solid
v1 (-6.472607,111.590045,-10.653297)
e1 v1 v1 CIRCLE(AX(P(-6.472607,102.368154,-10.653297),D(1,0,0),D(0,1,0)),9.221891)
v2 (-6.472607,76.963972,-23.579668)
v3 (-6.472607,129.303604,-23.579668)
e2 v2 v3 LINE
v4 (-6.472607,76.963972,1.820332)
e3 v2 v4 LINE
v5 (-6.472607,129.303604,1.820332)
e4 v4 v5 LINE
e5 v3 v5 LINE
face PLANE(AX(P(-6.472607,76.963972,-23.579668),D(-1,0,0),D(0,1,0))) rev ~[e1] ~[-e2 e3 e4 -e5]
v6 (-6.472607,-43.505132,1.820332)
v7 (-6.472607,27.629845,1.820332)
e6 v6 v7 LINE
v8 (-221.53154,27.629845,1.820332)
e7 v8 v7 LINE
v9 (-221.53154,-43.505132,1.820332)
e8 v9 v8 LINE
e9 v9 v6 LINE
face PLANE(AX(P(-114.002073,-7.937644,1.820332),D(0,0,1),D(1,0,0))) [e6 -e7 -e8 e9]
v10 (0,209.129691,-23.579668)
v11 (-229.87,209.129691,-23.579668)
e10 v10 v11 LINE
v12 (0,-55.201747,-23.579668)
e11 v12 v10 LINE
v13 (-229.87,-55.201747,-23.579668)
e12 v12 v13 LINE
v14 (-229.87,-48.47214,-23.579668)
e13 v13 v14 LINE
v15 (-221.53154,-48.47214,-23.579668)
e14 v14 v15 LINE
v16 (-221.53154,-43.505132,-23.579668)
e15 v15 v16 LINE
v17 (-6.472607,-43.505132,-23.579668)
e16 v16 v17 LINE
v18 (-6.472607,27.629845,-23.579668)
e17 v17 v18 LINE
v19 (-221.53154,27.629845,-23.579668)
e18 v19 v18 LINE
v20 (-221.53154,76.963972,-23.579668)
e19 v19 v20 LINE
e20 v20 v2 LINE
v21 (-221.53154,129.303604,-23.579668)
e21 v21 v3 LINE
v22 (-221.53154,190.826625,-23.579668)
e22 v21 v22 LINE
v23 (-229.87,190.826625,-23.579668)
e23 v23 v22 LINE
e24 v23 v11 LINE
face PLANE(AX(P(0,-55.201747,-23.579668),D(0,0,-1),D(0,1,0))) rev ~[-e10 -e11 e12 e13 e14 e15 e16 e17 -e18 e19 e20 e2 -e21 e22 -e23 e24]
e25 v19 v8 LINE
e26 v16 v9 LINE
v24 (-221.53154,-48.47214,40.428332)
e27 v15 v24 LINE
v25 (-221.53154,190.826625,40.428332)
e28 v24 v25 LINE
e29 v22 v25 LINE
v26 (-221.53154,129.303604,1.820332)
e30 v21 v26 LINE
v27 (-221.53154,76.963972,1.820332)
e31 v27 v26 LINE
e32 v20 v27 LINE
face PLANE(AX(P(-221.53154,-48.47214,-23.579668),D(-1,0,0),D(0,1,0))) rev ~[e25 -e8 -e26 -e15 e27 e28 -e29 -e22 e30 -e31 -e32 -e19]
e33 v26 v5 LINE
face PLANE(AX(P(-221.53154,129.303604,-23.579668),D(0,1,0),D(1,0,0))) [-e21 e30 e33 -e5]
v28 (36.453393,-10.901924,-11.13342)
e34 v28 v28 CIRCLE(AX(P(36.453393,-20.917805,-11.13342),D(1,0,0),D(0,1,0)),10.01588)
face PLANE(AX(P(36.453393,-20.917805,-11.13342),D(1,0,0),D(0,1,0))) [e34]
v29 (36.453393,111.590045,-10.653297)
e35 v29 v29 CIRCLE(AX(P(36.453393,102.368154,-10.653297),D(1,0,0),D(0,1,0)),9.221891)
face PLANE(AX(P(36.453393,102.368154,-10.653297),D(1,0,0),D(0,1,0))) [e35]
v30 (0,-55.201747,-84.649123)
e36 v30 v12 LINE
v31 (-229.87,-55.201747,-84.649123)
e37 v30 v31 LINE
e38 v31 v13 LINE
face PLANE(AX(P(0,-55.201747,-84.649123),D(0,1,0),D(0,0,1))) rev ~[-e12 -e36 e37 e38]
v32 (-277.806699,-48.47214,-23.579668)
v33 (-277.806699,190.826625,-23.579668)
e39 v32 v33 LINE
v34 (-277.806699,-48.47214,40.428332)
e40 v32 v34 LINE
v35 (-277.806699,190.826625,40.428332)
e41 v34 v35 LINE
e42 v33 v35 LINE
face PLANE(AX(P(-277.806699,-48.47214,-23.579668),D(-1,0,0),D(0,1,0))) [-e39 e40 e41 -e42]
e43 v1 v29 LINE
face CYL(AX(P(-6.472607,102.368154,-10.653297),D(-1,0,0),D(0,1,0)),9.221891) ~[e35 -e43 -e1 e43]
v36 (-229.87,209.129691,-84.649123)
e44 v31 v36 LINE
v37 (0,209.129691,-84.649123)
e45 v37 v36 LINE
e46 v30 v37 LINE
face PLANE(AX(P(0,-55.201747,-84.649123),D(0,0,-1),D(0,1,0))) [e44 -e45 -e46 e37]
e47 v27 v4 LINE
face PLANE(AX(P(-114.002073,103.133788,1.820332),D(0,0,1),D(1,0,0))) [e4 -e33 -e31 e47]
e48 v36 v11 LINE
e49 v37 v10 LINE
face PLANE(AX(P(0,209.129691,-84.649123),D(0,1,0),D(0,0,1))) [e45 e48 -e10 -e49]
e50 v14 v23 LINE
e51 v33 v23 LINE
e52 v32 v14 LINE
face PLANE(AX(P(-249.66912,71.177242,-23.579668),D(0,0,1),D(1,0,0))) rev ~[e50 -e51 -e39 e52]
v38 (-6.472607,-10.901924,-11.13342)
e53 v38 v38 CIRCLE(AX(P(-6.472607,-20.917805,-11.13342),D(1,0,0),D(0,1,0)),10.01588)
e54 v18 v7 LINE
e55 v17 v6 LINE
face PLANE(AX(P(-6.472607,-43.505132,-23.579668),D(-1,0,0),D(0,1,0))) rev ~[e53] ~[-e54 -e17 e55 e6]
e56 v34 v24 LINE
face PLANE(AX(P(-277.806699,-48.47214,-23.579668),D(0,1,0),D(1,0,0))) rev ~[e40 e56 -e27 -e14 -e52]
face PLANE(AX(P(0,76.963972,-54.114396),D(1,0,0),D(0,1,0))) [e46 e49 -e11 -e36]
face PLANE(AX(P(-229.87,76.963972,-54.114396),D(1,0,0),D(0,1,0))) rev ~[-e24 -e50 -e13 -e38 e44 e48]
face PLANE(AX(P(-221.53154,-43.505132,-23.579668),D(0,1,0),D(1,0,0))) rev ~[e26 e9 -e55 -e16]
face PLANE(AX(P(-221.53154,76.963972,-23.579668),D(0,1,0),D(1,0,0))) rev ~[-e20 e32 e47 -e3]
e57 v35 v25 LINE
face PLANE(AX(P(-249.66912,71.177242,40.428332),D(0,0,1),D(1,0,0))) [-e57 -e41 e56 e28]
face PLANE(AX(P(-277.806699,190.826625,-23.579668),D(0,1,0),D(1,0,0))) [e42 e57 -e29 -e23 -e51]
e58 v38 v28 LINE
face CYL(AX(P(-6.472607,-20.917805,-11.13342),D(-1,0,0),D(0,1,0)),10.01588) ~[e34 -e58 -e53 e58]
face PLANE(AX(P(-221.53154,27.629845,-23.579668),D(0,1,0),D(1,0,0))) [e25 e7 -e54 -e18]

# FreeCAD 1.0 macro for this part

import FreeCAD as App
import Part
import Sketcher

V = App.Vector
Q = App.Units.Quantity

doc = App.newDocument("Part")
body = doc.addObject("PartDesign::Body", "Body")

# Sketch on YZ plane
sketch1 = body.newObject("Sketcher::SketchObject", "Sketch")
sketch1.AttachmentSupport = (doc.getObject("YZ_Plane"), [""])
sketch1.MapMode = "FlatFace"
sketch1.addGeometry([
    Part.LineSegment(V(-55, -24, 0), V(-55, -85, 0)),
    Part.LineSegment(V(-55, -85, 0), V(209, -85, 0)),
    Part.LineSegment(V(209, -85, 0), V(209, -24, 0)),
    Part.LineSegment(V(209, -24, 0), V(-55, -24, 0)),
], False)
sketch1.addConstraint([
    Sketcher.Constraint("Coincident", 0, 2, 1, 1),
    Sketcher.Constraint("Coincident", 1, 2, 2, 1),
    Sketcher.Constraint("Coincident", 2, 2, 3, 1),
    Sketcher.Constraint("Coincident", 3, 2, 0, 1),
    Sketcher.Constraint("Vertical", 0),
    Sketcher.Constraint("Horizontal", 1),
    Sketcher.Constraint("Vertical", 2),
    Sketcher.Constraint("Horizontal", 3),
    Sketcher.Constraint("DistanceX", 1, 1, 1, 2, Q("264.331438 mm")),
    Sketcher.Constraint("DistanceY", 0, 2, 0, 1, Q("61.069455 mm")),
    Sketcher.Constraint("DistanceX", -1, 1, 1, 2, Q("209.129691 mm")),
    Sketcher.Constraint("DistanceY", 2, 2, -1, 1, Q("23.579668 mm")),
])
pad1 = body.newObject("PartDesign::Pad", "Pad")
pad1.Profile = sketch1
pad1.Length = Q("9.05 in")
pad1.Reversed = True

# Sketch on XY plane
sketch2 = body.newObject("Sketcher::SketchObject", "Sketch001")
sketch2.AttachmentSupport = (doc.getObject("XY_Plane"), [""])
sketch2.MapMode = "FlatFace"
sketch2.AttachmentOffset = App.Placement(V(0, 0, -23.579668), App.Rotation())
sketch2.addGeometry([
    Part.LineSegment(V(-278, 191, 0), V(-278, -48, 0)),
    Part.LineSegment(V(-278, -48, 0), V(-222, -48, 0)),
    Part.LineSegment(V(-222, -48, 0), V(-222, 191, 0)),
    Part.LineSegment(V(-222, 191, 0), V(-278, 191, 0)),
], False)
sketch2.addConstraint([
    Sketcher.Constraint("Coincident", 0, 2, 1, 1),
    Sketcher.Constraint("Coincident", 1, 2, 2, 1),
    Sketcher.Constraint("Coincident", 2, 2, 3, 1),
    Sketcher.Constraint("Coincident", 3, 2, 0, 1),
    Sketcher.Constraint("Vertical", 0),
    Sketcher.Constraint("Horizontal", 1),
    Sketcher.Constraint("Vertical", 2),
    Sketcher.Constraint("Horizontal", 3),
    Sketcher.Constraint("DistanceX", 1, 1, 1, 2, Q("56.275159 mm")),
    Sketcher.Constraint("DistanceX", 0, 2, -1, 1, Q("277.806699 mm")),
    Sketcher.Constraint("DistanceY", 0, 2, 0, 1, Q("239.298765 mm")),
    Sketcher.Constraint("DistanceY", 0, 2, -1, 1, Q("48.47214 mm")),
])
pad2 = body.newObject("PartDesign::Pad", "Pad001")
pad2.Profile = sketch2
pad2.Length = Q("2.52 in")

# Sketch on XY plane
sketch3 = body.newObject("Sketcher::SketchObject", "Sketch002")
sketch3.AttachmentSupport = (doc.getObject("XY_Plane"), [""])
sketch3.MapMode = "FlatFace"
sketch3.AttachmentOffset = App.Placement(V(0, 0, -23.579668), App.Rotation())
sketch3.addGeometry([
    Part.LineSegment(V(-222, 28, 0), V(-222, -44, 0)),  # 0
    Part.LineSegment(V(-222, -44, 0), V(-6, -44, 0)),  # 1
    Part.LineSegment(V(-6, -44, 0), V(-6, 28, 0)),  # 2
    Part.LineSegment(V(-6, 28, 0), V(-222, 28, 0)),  # 3
    Part.LineSegment(V(-222, 129, 0), V(-222, 77, 0)),  # 4
    Part.LineSegment(V(-222, 77, 0), V(-6, 77, 0)),  # 5
    Part.LineSegment(V(-6, 77, 0), V(-6, 129, 0)),  # 6
    Part.LineSegment(V(-6, 129, 0), V(-222, 129, 0)),  # 7
], False)
sketch3.addConstraint([
    Sketcher.Constraint("Coincident", 0, 2, 1, 1),
    Sketcher.Constraint("Coincident", 1, 2, 2, 1),
    Sketcher.Constraint("Coincident", 2, 2, 3, 1),
    Sketcher.Constraint("Coincident", 3, 2, 0, 1),
    Sketcher.Constraint("Coincident", 4, 2, 5, 1),
    Sketcher.Constraint("Coincident", 5, 2, 6, 1),
    Sketcher.Constraint("Coincident", 6, 2, 7, 1),
    Sketcher.Constraint("Coincident", 7, 2, 4, 1),
    Sketcher.Constraint("Vertical", 0),
    Sketcher.Constraint("Horizontal", 1),
    Sketcher.Constraint("Vertical", 2),
    Sketcher.Constraint("Horizontal", 3),
    Sketcher.Constraint("Vertical", 4),
    Sketcher.Constraint("Horizontal", 5),
    Sketcher.Constraint("Vertical", 6),
    Sketcher.Constraint("Horizontal", 7),
    Sketcher.Constraint("Vertical", 3, 2, 4, 2),
    Sketcher.Constraint("Vertical", 2, 2, 5, 2),
    Sketcher.Constraint("DistanceX", 1, 1, 1, 2, Q("215.058933 mm")),
    Sketcher.Constraint("DistanceY", 0, 2, 0, 1, Q("71.134977 mm")),
    Sketcher.Constraint("DistanceY", 4, 2, 4, 1, Q("52.339632 mm")),
    Sketcher.Constraint("DistanceX", 0, 2, -1, 1, Q("221.53154 mm")),
    Sketcher.Constraint("DistanceY", 2, 2, 6, 2, Q("101.67376 mm")),
    Sketcher.Constraint("DistanceY", 0, 2, -1, 1, Q("43.505132 mm")),
])
pad3 = body.newObject("PartDesign::Pad", "Pad002")
pad3.Profile = sketch3
pad3.Length = Q("1 in")

# Sketch on YZ plane
sketch4 = body.newObject("Sketcher::SketchObject", "Sketch003")
sketch4.AttachmentSupport = (doc.getObject("YZ_Plane"), [""])
sketch4.MapMode = "FlatFace"
sketch4.AttachmentOffset = App.Placement(V(0, 0, -6.472607), App.Rotation())
sketch4.addGeometry([
    Part.Circle(V(-21, -11, 0), V(0, 0, 1), 10),
    Part.Circle(V(102, -11, 0), V(0, 0, 1), 9),
], False)
sketch4.addConstraint([
    Sketcher.Constraint("Diameter", 0, Q("20.031761 mm")),
    Sketcher.Constraint("Diameter", 1, Q("18.443782 mm")),
    Sketcher.Constraint("DistanceY", 0, 3, -1, 1, Q("11.13342 mm")),
    Sketcher.Constraint("DistanceX", 0, 3, 1, 3, Q("123.285959 mm")),
    Sketcher.Constraint("DistanceX", 0, 3, -1, 1, Q("20.917805 mm")),
    Sketcher.Constraint("DistanceY", 1, 3, -1, 1, Q("10.653297 mm")),
])
pad4 = body.newObject("PartDesign::Pad", "Pad003")
pad4.Profile = sketch4
pad4.Length = Q("1.69 in")

doc.recompute()
